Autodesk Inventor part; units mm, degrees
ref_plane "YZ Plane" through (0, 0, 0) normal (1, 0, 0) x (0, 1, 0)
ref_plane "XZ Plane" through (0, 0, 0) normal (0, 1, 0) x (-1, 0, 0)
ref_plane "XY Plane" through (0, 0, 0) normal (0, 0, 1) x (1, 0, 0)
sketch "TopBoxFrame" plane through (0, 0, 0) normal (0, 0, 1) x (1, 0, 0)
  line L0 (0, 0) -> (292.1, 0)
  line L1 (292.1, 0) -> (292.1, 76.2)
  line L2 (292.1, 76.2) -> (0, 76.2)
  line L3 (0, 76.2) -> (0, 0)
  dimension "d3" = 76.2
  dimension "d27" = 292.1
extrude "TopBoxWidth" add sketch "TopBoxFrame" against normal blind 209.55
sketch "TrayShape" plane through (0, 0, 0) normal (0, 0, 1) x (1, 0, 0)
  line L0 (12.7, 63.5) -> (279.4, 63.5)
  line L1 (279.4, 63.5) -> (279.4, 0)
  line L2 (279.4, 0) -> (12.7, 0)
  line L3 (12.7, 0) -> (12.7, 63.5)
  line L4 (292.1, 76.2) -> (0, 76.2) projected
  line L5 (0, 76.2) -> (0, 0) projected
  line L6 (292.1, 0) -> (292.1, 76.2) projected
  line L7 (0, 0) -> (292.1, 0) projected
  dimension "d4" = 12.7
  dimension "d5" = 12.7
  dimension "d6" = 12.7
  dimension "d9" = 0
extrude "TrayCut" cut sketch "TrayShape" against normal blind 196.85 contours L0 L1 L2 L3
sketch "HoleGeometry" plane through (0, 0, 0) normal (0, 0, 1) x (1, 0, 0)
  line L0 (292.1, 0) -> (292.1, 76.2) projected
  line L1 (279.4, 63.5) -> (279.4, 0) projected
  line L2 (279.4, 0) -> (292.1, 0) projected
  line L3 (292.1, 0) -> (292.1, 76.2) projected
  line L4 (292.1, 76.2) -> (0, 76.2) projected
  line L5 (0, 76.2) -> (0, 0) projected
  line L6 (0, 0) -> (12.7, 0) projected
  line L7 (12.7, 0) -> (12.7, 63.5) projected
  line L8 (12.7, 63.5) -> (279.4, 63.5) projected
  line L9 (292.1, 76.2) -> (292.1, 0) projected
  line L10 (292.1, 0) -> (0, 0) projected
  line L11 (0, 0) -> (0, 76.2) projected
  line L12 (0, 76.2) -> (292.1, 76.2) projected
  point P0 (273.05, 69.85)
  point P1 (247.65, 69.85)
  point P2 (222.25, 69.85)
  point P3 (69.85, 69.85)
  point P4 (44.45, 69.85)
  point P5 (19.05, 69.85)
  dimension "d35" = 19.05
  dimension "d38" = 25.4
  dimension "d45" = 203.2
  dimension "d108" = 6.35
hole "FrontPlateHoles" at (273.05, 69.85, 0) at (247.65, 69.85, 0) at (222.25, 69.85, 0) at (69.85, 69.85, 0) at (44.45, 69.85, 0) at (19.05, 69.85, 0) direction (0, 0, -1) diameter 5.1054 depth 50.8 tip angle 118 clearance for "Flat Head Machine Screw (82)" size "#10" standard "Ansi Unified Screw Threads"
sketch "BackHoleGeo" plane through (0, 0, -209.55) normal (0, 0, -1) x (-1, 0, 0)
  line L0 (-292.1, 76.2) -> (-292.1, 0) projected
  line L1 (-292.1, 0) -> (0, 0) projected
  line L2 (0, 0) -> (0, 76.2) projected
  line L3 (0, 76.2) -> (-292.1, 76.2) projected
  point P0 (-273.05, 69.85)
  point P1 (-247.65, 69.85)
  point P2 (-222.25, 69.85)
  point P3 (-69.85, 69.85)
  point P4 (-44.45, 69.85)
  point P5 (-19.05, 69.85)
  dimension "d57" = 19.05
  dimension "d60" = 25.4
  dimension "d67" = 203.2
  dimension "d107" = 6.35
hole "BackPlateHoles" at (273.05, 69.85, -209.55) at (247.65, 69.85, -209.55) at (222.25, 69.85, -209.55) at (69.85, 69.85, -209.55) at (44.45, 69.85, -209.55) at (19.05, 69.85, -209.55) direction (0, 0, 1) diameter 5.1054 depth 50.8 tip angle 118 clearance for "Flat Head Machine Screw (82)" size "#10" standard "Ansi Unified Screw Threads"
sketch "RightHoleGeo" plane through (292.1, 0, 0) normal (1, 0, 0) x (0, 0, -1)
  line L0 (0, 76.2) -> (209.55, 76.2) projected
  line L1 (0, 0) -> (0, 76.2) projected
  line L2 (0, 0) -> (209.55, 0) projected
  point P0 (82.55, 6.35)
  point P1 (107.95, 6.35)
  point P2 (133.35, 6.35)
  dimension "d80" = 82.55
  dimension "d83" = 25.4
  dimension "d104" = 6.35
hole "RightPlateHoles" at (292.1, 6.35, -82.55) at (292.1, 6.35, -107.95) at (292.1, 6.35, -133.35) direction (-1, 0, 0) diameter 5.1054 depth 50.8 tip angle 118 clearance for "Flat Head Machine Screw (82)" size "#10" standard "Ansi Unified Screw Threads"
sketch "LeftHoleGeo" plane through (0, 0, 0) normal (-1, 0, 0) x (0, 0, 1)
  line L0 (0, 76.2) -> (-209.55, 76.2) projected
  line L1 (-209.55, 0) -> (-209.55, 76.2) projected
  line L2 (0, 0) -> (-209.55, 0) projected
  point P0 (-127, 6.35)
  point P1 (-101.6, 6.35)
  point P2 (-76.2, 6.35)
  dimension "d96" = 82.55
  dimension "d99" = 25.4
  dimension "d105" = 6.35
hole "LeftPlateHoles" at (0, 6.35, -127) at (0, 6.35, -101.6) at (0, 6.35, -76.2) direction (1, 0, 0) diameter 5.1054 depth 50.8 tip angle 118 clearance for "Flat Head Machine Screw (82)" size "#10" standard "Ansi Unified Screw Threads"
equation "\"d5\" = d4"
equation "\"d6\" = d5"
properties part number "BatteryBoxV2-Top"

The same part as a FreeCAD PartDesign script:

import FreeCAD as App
import Part
import Sketcher
from FreeCAD import Vector
Q = App.Units.Quantity

doc = App.newDocument("Part")
params = doc.addObject("Spreadsheet::Sheet", "Params")
for row, (alias, value) in enumerate([
    ("sketch1_height", "3 in"),
    ("sketch1_width", "11.5 in"),
    ("pad1_length", "8.25 in"),
    ("sketch2_width", "10.5 in"),
    ("sketch2_height", "2.5 in"),
    ("pocket1_length", "7.75 in"),
    ("sketch3_diameter", "0.201 in"),
    ("hole_diameter", "0.201 in"),
    ("hole_depth", "2 in"),
    ("sketch4_diameter", "0.201 in"),
    ("hole2_diameter", "0.201 in"),
    ("hole2_depth", "2 in"),
    ("sketch5_diameter", "0.201 in"),
    ("hole3_diameter", "0.201 in"),
    ("hole3_depth", "2 in"),
    ("sketch6_diameter", "0.201 in"),
    ("hole4_diameter", "0.201 in"),
    ("hole4_depth", "2 in"),
], start=1):
    params.set(f"A{row}", alias)
    params.set(f"B{row}", "=" + value)
    params.setAlias(f"B{row}", alias)

body = doc.addObject("PartDesign::Body", "Body")

sketch1 = doc.addObject("Sketcher::SketchObject", "Sketch")
body.addObject(sketch1)
sketch1.AttachmentSupport = (doc.XY_Plane, [""])
sketch1.MapMode = "FlatFace"
sketch1.addGeometry([
    Part.LineSegment(Vector(0, 76, 0), Vector(0, 0, 0)),
    Part.LineSegment(Vector(0, 0, 0), Vector(292, 0, 0)),
    Part.LineSegment(Vector(292, 0, 0), Vector(292, 76, 0)),
    Part.LineSegment(Vector(292, 76, 0), Vector(0, 76, 0)),
], False)
sketch1.addConstraint([
    Sketcher.Constraint("Coincident", 0, 2, 1, 1),
    Sketcher.Constraint("Coincident", 1, 2, 2, 1),
    Sketcher.Constraint("Coincident", 2, 2, 3, 1),
    Sketcher.Constraint("Coincident", 3, 2, 0, 1),
    Sketcher.Constraint("Vertical", 0),
    Sketcher.Constraint("Horizontal", 1),
    Sketcher.Constraint("Vertical", 2),
    Sketcher.Constraint("Horizontal", 3),
    Sketcher.Constraint("Coincident", 0, 2, -1, 1),
    Sketcher.Constraint("DistanceY", 0, 2, 0, 1, Q("3 in")),
    Sketcher.Constraint("DistanceX", 1, 1, 1, 2, Q("11.5 in")),
])
sketch1.setExpression("Constraints[9]", "Params.sketch1_height")
sketch1.setExpression("Constraints[10]", "Params.sketch1_width")
pad1 = doc.addObject("PartDesign::Pad", "Pad")
body.addObject(pad1)
pad1.Profile = sketch1
pad1.setExpression("Length", "Params.pad1_length")
pad1.Reversed = True

sketch2 = doc.addObject("Sketcher::SketchObject", "Sketch001")
body.addObject(sketch2)
sketch2.AttachmentSupport = (doc.XY_Plane, [""])
sketch2.MapMode = "FlatFace"
sketch2.addGeometry([
    Part.LineSegment(Vector(279, 64, 0), Vector(13, 64, 0)),
    Part.LineSegment(Vector(13, 64, 0), Vector(13, 0, 0)),
    Part.LineSegment(Vector(13, 0, 0), Vector(279, 0, 0)),
    Part.LineSegment(Vector(279, 0, 0), Vector(279, 64, 0)),
], False)
sketch2.addConstraint([
    Sketcher.Constraint("Coincident", 0, 2, 1, 1),
    Sketcher.Constraint("Coincident", 1, 2, 2, 1),
    Sketcher.Constraint("Coincident", 2, 2, 3, 1),
    Sketcher.Constraint("Coincident", 3, 2, 0, 1),
    Sketcher.Constraint("Horizontal", 0),
    Sketcher.Constraint("Vertical", 1),
    Sketcher.Constraint("Horizontal", 2),
    Sketcher.Constraint("Vertical", 3),
    Sketcher.Constraint("PointOnObject", 1, 2, -1),
    Sketcher.Constraint("DistanceX", -1, 1, 0, 2, Q("0.5 in")),
    Sketcher.Constraint("DistanceX", 0, 2, 0, 1, Q("10.5 in")),
    Sketcher.Constraint("DistanceY", 1, 2, 1, 1, Q("2.5 in")),
])
sketch2.setExpression("Constraints[10]", "Params.sketch2_width")
sketch2.setExpression("Constraints[11]", "Params.sketch2_height")
pocket1 = doc.addObject("PartDesign::Pocket", "Pocket")
body.addObject(pocket1)
pocket1.Profile = sketch2
pocket1.setExpression("Length", "Params.pocket1_length")

sketch3 = doc.addObject("Sketcher::SketchObject", "Sketch002")
body.addObject(sketch3)
sketch3.AttachmentSupport = (doc.XY_Plane, [""])
sketch3.MapMode = "FlatFace"
sketch3.addGeometry([
    Part.Circle(Vector(273.1, 69.8, 0), Vector(0, 0, 1), 2.6),
    Part.Circle(Vector(247.7, 69.8, 0), Vector(0, 0, 1), 2.6),
    Part.Circle(Vector(222.2, 69.8, 0), Vector(0, 0, 1), 2.6),
    Part.Circle(Vector(69.8, 69.8, 0), Vector(0, 0, 1), 2.6),
    Part.Circle(Vector(44.5, 69.8, 0), Vector(0, 0, 1), 2.6),
    Part.Circle(Vector(19.1, 69.8, 0), Vector(0, 0, 1), 2.6),
], False)
sketch3.addConstraint([
    Sketcher.Constraint("Equal", 0, 1),
    Sketcher.Constraint("Equal", 1, 2),
    Sketcher.Constraint("Equal", 2, 3),
    Sketcher.Constraint("Equal", 3, 4),
    Sketcher.Constraint("Equal", 4, 5),
    Sketcher.Constraint("Horizontal", 0, 3, 1, 3),
    Sketcher.Constraint("Horizontal", 1, 3, 2, 3),
    Sketcher.Constraint("Horizontal", 2, 3, 3, 3),
    Sketcher.Constraint("Horizontal", 3, 3, 4, 3),
    Sketcher.Constraint("Horizontal", 4, 3, 5, 3),
    Sketcher.Constraint("Diameter", 0, Q("0.201 in")),
    Sketcher.Constraint("DistanceX", 1, 3, 0, 3, Q("1 in")),
    Sketcher.Constraint("DistanceX", 2, 3, 1, 3, Q("1 in")),
    Sketcher.Constraint("DistanceX", 3, 3, 2, 3, Q("6 in")),
    Sketcher.Constraint("DistanceX", 4, 3, 3, 3, Q("1 in")),
    Sketcher.Constraint("DistanceX", 5, 3, 4, 3, Q("1 in")),
    Sketcher.Constraint("DistanceX", -1, 1, 0, 3, Q("10.75 in")),
    Sketcher.Constraint("DistanceY", -1, 1, 0, 3, Q("2.75 in")),
])
sketch3.setExpression("Constraints[10]", "Params.sketch3_diameter")
doc.recompute()
hole = doc.addObject("PartDesign::Hole", "Hole")
body.addObject(hole)
hole.Profile = sketch3
hole.ThreadType = "None"
hole.setExpression("Diameter", "Params.hole_diameter")
hole.DepthType = "Dimension"
hole.setExpression("Depth", "Params.hole_depth")
hole.DrillPoint = "Angled"
hole.DrillPointAngle = 118

sketch4 = doc.addObject("Sketcher::SketchObject", "Sketch003")
body.addObject(sketch4)
sketch4.AttachmentSupport = (doc.XY_Plane, [""])
sketch4.MapMode = "FlatFace"
sketch4.AttachmentOffset = App.Placement(Vector(0, 0, -8.25 * 25.4), App.Rotation())
sketch4.addGeometry([
    Part.Circle(Vector(273.1, 69.8, 0), Vector(0, 0, 1), 2.6),
    Part.Circle(Vector(247.7, 69.8, 0), Vector(0, 0, 1), 2.6),
    Part.Circle(Vector(222.2, 69.8, 0), Vector(0, 0, 1), 2.6),
    Part.Circle(Vector(69.8, 69.8, 0), Vector(0, 0, 1), 2.6),
    Part.Circle(Vector(44.5, 69.8, 0), Vector(0, 0, 1), 2.6),
    Part.Circle(Vector(19.1, 69.8, 0), Vector(0, 0, 1), 2.6),
], False)
sketch4.addConstraint([
    Sketcher.Constraint("Equal", 0, 1),
    Sketcher.Constraint("Equal", 1, 2),
    Sketcher.Constraint("Equal", 2, 3),
    Sketcher.Constraint("Equal", 3, 4),
    Sketcher.Constraint("Equal", 4, 5),
    Sketcher.Constraint("Horizontal", 0, 3, 1, 3),
    Sketcher.Constraint("Horizontal", 1, 3, 2, 3),
    Sketcher.Constraint("Horizontal", 2, 3, 3, 3),
    Sketcher.Constraint("Horizontal", 3, 3, 4, 3),
    Sketcher.Constraint("Horizontal", 4, 3, 5, 3),
    Sketcher.Constraint("Diameter", 0, Q("0.201 in")),
    Sketcher.Constraint("DistanceX", 1, 3, 0, 3, Q("1 in")),
    Sketcher.Constraint("DistanceX", 2, 3, 1, 3, Q("1 in")),
    Sketcher.Constraint("DistanceX", 3, 3, 2, 3, Q("6 in")),
    Sketcher.Constraint("DistanceX", 4, 3, 3, 3, Q("1 in")),
    Sketcher.Constraint("DistanceX", 5, 3, 4, 3, Q("1 in")),
    Sketcher.Constraint("DistanceX", -1, 1, 0, 3, Q("10.75 in")),
    Sketcher.Constraint("DistanceY", -1, 1, 0, 3, Q("2.75 in")),
])
sketch4.setExpression("Constraints[10]", "Params.sketch4_diameter")
doc.recompute()
hole2 = doc.addObject("PartDesign::Hole", "Hole001")
body.addObject(hole2)
hole2.Profile = sketch4
hole2.ThreadType = "None"
hole2.setExpression("Diameter", "Params.hole2_diameter")
hole2.DepthType = "Dimension"
hole2.setExpression("Depth", "Params.hole2_depth")
hole2.DrillPoint = "Angled"
hole2.DrillPointAngle = 118
hole2.Reversed = True

sketch5 = doc.addObject("Sketcher::SketchObject", "Sketch004")
body.addObject(sketch5)
sketch5.AttachmentSupport = (doc.YZ_Plane, [""])
sketch5.MapMode = "FlatFace"
sketch5.AttachmentOffset = App.Placement(Vector(0, 0, 11.5 * 25.4), App.Rotation())
sketch5.addGeometry([
    Part.Circle(Vector(6.3, -82.5, 0), Vector(0, 0, 1), 2.6),
    Part.Circle(Vector(6.3, -108, 0), Vector(0, 0, 1), 2.6),
    Part.Circle(Vector(6.3, -133.3, 0), Vector(0, 0, 1), 2.6),
], False)
sketch5.addConstraint([
    Sketcher.Constraint("Equal", 0, 1),
    Sketcher.Constraint("Equal", 1, 2),
    Sketcher.Constraint("Vertical", 0, 3, 1, 3),
    Sketcher.Constraint("Vertical", 1, 3, 2, 3),
    Sketcher.Constraint("Diameter", 0, Q("0.201 in")),
    Sketcher.Constraint("DistanceY", 1, 3, 0, 3, Q("1 in")),
    Sketcher.Constraint("DistanceY", 2, 3, 1, 3, Q("1 in")),
    Sketcher.Constraint("DistanceX", -1, 1, 0, 3, Q("0.25 in")),
    Sketcher.Constraint("DistanceY", 0, 3, -1, 1, Q("3.25 in")),
])
sketch5.setExpression("Constraints[4]", "Params.sketch5_diameter")
doc.recompute()
hole3 = doc.addObject("PartDesign::Hole", "Hole002")
body.addObject(hole3)
hole3.Profile = sketch5
hole3.ThreadType = "None"
hole3.setExpression("Diameter", "Params.hole3_diameter")
hole3.DepthType = "Dimension"
hole3.setExpression("Depth", "Params.hole3_depth")
hole3.DrillPoint = "Angled"
hole3.DrillPointAngle = 118

sketch6 = doc.addObject("Sketcher::SketchObject", "Sketch005")
body.addObject(sketch6)
sketch6.AttachmentSupport = (doc.YZ_Plane, [""])
sketch6.MapMode = "FlatFace"
sketch6.addGeometry([
    Part.Circle(Vector(6.3, -127, 0), Vector(0, 0, 1), 2.6),
    Part.Circle(Vector(6.3, -101.6, 0), Vector(0, 0, 1), 2.6),
    Part.Circle(Vector(6.3, -76.2, 0), Vector(0, 0, 1), 2.6),
], False)
sketch6.addConstraint([
    Sketcher.Constraint("Equal", 0, 1),
    Sketcher.Constraint("Equal", 1, 2),
    Sketcher.Constraint("Vertical", 0, 3, 1, 3),
    Sketcher.Constraint("Vertical", 1, 3, 2, 3),
    Sketcher.Constraint("Diameter", 0, Q("0.201 in")),
    Sketcher.Constraint("DistanceY", 0, 3, -1, 1, Q("5 in")),
    Sketcher.Constraint("DistanceY", 1, 3, -1, 1, Q("4 in")),
    Sketcher.Constraint("DistanceY", 2, 3, -1, 1, Q("3 in")),
    Sketcher.Constraint("DistanceX", -1, 1, 0, 3, Q("0.25 in")),
])
sketch6.setExpression("Constraints[4]", "Params.sketch6_diameter")
doc.recompute()
hole4 = doc.addObject("PartDesign::Hole", "Hole003")
body.addObject(hole4)
hole4.Profile = sketch6
hole4.ThreadType = "None"
hole4.setExpression("Diameter", "Params.hole4_diameter")
hole4.DepthType = "Dimension"
hole4.setExpression("Depth", "Params.hole4_depth")
hole4.DrillPoint = "Angled"
hole4.DrillPointAngle = 118
hole4.Reversed = True

doc.recompute()
